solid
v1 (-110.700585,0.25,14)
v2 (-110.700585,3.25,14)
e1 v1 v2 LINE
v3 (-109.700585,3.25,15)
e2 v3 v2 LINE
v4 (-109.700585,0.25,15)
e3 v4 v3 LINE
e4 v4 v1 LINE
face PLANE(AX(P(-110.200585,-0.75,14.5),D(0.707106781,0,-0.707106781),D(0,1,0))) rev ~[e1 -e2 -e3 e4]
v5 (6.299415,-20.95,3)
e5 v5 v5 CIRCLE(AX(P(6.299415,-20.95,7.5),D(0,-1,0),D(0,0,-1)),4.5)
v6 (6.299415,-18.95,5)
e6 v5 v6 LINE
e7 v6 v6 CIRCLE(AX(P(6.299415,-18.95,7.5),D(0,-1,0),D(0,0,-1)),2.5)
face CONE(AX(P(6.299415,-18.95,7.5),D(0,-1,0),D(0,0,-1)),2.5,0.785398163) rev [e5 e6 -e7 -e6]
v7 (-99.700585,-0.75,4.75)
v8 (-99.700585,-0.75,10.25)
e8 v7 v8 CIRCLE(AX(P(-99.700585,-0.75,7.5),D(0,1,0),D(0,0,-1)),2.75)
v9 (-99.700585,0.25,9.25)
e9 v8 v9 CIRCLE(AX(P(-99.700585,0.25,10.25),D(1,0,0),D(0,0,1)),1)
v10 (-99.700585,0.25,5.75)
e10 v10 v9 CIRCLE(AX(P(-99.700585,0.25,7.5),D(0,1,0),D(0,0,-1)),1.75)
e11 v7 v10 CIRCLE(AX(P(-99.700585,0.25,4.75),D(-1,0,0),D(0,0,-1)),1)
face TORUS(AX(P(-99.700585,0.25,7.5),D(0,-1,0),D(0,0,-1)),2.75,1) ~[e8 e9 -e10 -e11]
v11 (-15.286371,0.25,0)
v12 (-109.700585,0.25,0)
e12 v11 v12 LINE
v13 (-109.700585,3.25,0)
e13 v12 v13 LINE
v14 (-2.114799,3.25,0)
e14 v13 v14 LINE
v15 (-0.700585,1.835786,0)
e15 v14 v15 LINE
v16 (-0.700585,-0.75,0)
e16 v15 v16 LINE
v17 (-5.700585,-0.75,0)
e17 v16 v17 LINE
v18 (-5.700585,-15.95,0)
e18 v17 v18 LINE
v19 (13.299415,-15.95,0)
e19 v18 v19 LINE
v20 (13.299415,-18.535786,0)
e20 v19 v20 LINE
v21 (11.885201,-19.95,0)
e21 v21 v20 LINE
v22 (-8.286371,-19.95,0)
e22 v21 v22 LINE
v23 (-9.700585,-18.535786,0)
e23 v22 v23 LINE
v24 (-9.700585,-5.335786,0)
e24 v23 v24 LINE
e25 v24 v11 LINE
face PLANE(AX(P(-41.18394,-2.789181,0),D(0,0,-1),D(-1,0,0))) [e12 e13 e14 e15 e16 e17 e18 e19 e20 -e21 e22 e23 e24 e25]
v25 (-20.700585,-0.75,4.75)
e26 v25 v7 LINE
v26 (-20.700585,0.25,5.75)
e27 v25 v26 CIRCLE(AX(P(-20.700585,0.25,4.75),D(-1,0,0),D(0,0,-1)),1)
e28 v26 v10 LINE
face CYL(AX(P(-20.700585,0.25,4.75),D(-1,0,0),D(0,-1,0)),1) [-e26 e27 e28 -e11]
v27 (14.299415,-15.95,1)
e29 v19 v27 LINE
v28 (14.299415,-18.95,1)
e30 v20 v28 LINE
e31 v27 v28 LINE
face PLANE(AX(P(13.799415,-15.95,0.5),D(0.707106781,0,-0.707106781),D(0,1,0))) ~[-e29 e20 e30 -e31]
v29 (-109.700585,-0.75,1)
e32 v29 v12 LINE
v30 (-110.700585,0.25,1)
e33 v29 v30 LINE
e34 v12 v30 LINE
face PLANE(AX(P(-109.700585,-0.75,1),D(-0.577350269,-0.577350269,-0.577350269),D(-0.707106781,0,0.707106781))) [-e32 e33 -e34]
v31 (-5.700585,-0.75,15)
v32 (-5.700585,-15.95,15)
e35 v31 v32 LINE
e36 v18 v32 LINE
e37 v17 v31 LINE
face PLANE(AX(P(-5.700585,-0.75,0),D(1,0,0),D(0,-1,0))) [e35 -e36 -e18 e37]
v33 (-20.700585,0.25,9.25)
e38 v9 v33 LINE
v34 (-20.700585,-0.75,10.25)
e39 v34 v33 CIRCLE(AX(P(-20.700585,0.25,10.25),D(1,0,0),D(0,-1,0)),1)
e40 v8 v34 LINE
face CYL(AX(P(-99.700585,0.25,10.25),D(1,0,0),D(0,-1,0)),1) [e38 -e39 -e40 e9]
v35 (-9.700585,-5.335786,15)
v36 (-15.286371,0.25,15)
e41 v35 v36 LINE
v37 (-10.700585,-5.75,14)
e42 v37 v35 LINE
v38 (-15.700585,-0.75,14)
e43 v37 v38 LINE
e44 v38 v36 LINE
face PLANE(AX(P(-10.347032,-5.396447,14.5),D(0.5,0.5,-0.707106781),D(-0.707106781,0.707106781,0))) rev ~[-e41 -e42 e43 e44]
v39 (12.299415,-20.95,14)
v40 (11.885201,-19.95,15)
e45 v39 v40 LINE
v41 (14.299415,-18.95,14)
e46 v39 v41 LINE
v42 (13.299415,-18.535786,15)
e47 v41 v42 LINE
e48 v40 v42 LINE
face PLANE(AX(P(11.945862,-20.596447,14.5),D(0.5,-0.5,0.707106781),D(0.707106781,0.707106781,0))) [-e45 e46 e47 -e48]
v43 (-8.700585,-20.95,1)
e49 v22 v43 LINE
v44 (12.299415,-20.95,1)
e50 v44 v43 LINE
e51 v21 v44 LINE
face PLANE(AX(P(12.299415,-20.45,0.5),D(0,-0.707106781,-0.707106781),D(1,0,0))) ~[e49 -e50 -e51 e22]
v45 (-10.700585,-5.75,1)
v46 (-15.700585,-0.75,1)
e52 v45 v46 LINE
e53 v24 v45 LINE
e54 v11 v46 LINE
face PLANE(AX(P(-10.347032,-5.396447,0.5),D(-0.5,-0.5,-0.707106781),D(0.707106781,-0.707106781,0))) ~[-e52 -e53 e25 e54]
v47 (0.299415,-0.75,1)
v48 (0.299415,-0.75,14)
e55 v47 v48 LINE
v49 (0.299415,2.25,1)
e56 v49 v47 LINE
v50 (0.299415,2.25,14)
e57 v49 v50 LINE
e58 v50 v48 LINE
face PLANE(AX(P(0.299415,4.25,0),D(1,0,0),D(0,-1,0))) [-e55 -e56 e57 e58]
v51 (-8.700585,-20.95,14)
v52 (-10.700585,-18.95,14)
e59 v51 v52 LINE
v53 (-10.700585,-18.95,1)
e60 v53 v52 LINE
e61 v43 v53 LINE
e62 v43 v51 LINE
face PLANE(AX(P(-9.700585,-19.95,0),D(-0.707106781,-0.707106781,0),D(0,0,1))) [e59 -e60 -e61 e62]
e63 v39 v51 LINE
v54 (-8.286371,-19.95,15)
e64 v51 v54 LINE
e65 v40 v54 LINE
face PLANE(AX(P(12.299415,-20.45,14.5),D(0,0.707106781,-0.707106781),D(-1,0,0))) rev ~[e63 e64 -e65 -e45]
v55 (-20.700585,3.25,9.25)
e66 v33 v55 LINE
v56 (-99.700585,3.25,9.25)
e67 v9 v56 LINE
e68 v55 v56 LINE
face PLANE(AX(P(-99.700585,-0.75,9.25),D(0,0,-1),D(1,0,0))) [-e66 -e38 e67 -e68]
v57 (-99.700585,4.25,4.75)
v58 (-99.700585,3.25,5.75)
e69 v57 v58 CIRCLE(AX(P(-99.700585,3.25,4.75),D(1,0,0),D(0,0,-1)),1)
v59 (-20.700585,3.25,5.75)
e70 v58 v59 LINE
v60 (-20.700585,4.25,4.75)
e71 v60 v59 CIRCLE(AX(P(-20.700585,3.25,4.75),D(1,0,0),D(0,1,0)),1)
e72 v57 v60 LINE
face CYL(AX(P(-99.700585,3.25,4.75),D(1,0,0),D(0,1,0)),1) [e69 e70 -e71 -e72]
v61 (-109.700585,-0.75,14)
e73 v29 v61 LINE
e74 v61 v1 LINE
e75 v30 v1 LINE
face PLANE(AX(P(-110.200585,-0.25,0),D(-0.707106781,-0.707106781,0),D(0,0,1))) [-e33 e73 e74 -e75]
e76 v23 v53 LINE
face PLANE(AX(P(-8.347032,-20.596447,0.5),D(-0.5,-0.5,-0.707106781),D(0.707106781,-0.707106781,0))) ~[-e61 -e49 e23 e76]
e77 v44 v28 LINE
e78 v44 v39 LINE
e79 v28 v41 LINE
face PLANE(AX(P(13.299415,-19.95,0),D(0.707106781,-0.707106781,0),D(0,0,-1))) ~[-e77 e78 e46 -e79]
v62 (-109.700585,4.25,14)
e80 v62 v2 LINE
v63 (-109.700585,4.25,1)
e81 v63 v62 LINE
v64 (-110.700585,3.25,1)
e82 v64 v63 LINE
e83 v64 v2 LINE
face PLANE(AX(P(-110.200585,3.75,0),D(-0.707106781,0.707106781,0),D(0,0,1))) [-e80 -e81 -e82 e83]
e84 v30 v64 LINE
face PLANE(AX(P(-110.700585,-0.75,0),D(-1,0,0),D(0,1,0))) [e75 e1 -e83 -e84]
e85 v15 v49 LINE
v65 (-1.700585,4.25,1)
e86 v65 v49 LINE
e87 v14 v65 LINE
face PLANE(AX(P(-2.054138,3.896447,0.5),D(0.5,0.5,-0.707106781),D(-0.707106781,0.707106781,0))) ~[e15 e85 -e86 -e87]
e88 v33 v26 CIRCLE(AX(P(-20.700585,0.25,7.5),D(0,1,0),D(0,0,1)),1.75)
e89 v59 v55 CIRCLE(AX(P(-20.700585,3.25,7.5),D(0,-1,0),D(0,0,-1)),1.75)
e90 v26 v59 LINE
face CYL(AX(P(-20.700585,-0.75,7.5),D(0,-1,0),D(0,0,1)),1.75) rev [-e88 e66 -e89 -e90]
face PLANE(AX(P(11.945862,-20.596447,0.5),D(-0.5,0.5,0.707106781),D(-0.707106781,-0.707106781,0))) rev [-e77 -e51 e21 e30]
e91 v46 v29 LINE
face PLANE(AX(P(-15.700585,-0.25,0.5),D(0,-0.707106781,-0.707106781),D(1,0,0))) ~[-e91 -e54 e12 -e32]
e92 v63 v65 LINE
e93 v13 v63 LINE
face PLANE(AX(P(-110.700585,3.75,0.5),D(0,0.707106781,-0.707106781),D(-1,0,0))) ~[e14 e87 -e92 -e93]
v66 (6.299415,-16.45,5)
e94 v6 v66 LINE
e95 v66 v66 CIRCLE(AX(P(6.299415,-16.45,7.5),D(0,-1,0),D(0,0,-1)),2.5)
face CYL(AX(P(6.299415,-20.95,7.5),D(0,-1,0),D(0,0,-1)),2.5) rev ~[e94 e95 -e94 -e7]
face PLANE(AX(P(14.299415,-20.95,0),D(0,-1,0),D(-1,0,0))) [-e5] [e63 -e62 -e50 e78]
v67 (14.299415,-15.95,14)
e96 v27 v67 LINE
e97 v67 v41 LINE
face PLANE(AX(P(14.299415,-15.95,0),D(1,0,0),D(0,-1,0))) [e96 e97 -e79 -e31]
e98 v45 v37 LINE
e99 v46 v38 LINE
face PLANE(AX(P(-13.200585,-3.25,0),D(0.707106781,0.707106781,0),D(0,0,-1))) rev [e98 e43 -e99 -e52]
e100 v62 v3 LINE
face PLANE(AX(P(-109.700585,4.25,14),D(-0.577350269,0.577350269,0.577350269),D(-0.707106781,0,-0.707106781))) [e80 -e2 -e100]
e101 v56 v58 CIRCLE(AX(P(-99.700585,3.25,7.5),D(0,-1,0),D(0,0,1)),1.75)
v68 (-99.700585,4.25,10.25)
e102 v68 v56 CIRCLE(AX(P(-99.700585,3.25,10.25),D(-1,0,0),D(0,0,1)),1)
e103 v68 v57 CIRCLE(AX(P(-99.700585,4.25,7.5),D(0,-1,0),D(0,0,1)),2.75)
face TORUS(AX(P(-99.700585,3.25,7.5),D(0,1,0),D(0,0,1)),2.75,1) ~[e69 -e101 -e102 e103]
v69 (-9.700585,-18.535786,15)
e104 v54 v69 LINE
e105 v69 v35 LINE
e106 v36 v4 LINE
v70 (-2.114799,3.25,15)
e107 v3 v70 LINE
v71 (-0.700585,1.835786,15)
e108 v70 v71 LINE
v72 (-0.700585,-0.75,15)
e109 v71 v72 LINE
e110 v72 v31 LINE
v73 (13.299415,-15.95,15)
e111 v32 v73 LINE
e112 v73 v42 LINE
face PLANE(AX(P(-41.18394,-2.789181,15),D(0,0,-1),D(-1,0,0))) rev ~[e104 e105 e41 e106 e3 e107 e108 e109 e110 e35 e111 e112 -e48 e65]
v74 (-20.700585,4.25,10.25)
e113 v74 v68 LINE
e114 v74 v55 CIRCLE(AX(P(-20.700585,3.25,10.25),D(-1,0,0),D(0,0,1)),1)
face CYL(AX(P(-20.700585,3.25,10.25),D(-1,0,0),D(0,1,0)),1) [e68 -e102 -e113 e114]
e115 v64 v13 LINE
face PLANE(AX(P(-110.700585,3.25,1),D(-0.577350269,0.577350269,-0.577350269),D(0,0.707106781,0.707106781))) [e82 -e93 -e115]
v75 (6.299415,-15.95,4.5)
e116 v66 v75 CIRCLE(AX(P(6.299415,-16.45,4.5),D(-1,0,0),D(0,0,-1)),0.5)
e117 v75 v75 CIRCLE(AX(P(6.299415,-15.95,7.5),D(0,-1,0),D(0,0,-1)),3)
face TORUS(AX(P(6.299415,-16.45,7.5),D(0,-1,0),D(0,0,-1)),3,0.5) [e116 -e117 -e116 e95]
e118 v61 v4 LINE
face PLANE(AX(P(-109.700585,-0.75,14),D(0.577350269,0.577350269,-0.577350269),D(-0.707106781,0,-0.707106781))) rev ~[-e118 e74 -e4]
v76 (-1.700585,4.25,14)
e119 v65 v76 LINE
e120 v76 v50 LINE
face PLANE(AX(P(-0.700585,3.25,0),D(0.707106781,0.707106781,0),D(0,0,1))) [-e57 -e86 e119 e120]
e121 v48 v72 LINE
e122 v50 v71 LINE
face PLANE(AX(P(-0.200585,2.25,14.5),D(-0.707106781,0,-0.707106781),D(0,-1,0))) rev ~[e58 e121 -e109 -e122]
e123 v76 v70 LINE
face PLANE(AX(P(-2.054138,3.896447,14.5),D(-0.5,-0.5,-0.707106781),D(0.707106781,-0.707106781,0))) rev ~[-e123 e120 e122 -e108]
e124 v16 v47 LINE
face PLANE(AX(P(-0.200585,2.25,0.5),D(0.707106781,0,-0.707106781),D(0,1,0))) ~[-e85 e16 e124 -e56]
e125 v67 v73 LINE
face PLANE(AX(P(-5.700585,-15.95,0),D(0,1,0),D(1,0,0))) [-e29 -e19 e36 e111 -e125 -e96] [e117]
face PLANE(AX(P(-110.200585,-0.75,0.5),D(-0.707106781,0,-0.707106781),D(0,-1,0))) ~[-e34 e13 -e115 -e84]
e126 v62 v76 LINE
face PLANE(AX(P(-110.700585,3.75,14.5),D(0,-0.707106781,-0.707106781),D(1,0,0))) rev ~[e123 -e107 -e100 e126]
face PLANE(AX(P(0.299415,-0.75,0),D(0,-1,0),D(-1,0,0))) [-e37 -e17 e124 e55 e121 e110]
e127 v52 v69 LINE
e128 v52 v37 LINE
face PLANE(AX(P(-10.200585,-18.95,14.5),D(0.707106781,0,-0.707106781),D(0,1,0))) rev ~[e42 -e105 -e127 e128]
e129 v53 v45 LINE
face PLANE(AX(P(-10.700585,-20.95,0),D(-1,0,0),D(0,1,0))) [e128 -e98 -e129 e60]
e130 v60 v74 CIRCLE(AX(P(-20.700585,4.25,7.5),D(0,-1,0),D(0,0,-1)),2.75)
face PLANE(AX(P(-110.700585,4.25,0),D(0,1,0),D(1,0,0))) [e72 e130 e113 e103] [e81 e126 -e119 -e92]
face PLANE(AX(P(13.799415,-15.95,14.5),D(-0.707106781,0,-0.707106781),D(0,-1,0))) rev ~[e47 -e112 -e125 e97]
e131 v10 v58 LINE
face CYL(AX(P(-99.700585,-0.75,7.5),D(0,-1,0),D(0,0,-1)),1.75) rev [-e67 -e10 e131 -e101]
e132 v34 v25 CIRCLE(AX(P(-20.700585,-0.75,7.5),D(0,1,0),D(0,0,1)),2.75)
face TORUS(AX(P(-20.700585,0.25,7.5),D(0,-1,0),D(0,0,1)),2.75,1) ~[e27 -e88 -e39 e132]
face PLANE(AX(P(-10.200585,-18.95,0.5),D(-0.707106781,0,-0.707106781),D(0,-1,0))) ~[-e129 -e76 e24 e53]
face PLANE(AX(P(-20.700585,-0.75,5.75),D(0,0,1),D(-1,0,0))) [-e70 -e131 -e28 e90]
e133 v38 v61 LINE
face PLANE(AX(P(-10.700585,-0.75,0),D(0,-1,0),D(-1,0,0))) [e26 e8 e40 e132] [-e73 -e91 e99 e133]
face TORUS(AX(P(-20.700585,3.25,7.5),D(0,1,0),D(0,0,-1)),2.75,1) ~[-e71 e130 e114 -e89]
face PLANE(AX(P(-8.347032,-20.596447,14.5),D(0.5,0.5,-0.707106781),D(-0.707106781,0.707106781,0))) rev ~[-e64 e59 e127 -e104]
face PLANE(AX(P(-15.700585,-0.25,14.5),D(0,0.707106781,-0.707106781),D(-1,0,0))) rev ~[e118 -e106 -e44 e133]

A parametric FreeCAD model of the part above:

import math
import FreeCAD as App
import Part
import Sketcher


def edges_at(feature, points):
    """Names of the edges that pass closest to the given points."""
    edges = feature.Shape.Edges
    near = lambda p: min(range(len(edges)), key=lambda i: edges[i].distToShape(Part.Vertex(*p))[0])
    return sorted({f"Edge{near(p) + 1}" for p in points})

doc = App.newDocument("Part")
body = doc.addObject("PartDesign::Body", "Body")

sketch1 = body.newObject("Sketcher::SketchObject", "Sketch")
sketch1.AttachmentSupport = (doc.getObject("XY_Plane"), [""])
sketch1.MapMode = "FlatFace"
sketch1.addGeometry(Part.LineSegment(App.Vector(-6, -1, 0), App.Vector(0, -1, 0)), False)
sketch1.addGeometry(Part.LineSegment(App.Vector(0, -1, 0), App.Vector(0, 4, 0)), False)
sketch1.addGeometry(Part.LineSegment(App.Vector(0, 4, 0), App.Vector(-111, 4, 0)), False)
sketch1.addGeometry(Part.LineSegment(App.Vector(-111, 4, 0), App.Vector(-111, -1, 0)), False)
sketch1.addGeometry(Part.LineSegment(App.Vector(-111, -1, 0), App.Vector(-11, -1, 0)), False)
sketch1.addGeometry(Part.LineSegment(App.Vector(-11, -1, 0), App.Vector(-11, -21, 0)), False)
sketch1.addGeometry(Part.LineSegment(App.Vector(-11, -21, 0), App.Vector(14, -21, 0)), False)
sketch1.addGeometry(Part.LineSegment(App.Vector(14, -21, 0), App.Vector(14, -16, 0)), False)
sketch1.addGeometry(Part.LineSegment(App.Vector(14, -16, 0), App.Vector(-6, -16, 0)), False)
sketch1.addGeometry(Part.LineSegment(App.Vector(-6, -16, 0), App.Vector(-6, -1, 0)), False)
sketch1.addConstraint(Sketcher.Constraint("Coincident", 0, 2, 1, 1))
sketch1.addConstraint(Sketcher.Constraint("Coincident", 1, 2, 2, 1))
sketch1.addConstraint(Sketcher.Constraint("Coincident", 2, 2, 3, 1))
sketch1.addConstraint(Sketcher.Constraint("Coincident", 3, 2, 4, 1))
sketch1.addConstraint(Sketcher.Constraint("Coincident", 4, 2, 5, 1))
sketch1.addConstraint(Sketcher.Constraint("Coincident", 5, 2, 6, 1))
sketch1.addConstraint(Sketcher.Constraint("Coincident", 6, 2, 7, 1))
sketch1.addConstraint(Sketcher.Constraint("Coincident", 7, 2, 8, 1))
sketch1.addConstraint(Sketcher.Constraint("Coincident", 8, 2, 9, 1))
sketch1.addConstraint(Sketcher.Constraint("Coincident", 9, 2, 0, 1))
sketch1.addConstraint(Sketcher.Constraint("Horizontal", 0))
sketch1.addConstraint(Sketcher.Constraint("Vertical", 1))
sketch1.addConstraint(Sketcher.Constraint("Horizontal", 2))
sketch1.addConstraint(Sketcher.Constraint("Vertical", 3))
sketch1.addConstraint(Sketcher.Constraint("Horizontal", 4))
sketch1.addConstraint(Sketcher.Constraint("Vertical", 5))
sketch1.addConstraint(Sketcher.Constraint("Horizontal", 6))
sketch1.addConstraint(Sketcher.Constraint("Vertical", 7))
sketch1.addConstraint(Sketcher.Constraint("Horizontal", 8))
sketch1.addConstraint(Sketcher.Constraint("Vertical", 9))
sketch1.addConstraint(Sketcher.Constraint("Horizontal", 0, 2, 3, 2))
sketch1.addConstraint(Sketcher.Constraint("Equal", 3, 7))
sketch1.addConstraint(Sketcher.Constraint("DistanceX", 0, 1, 0, 2, 6.0))
sketch1.addConstraint(Sketcher.Constraint("DistanceX", 2, 2, 2, 1, 111.0))
sketch1.addConstraint(Sketcher.Constraint("DistanceX", 4, 1, 4, 2, 100.0))
sketch1.addConstraint(Sketcher.Constraint("DistanceX", 6, 1, 6, 2, 25.0))
sketch1.addConstraint(Sketcher.Constraint("DistanceY", 1, 1, 1, 2, 5.0))
sketch1.addConstraint(Sketcher.Constraint("DistanceY", 5, 2, 5, 1, 20.2))
sketch1.addConstraint(Sketcher.Constraint("DistanceY", 0, 2, -1, 1, 0.75))
sketch1.addConstraint(Sketcher.Constraint("DistanceX", -1, 1, 0, 2, 0.299415))
pad1 = body.newObject("PartDesign::Pad", "Pad")
pad1.Profile = sketch1
pad1.Length = 15

sketch2 = body.newObject("Sketcher::SketchObject", "Sketch001")
sketch2.AttachmentSupport = (doc.getObject("XZ_Plane"), [""])
sketch2.MapMode = "FlatFace"
sketch2.AttachmentOffset = App.Placement(App.Vector(0, 0, 20.95), App.Rotation())
sketch2.addGeometry(Part.Circle(App.Vector(6.3, 7.5, 0), App.Vector(0, 0, 1), 2.5), False)
sketch2.addConstraint(Sketcher.Constraint("Diameter", 0, 5.0))
sketch2.addConstraint(Sketcher.Constraint("DistanceY", -1, 1, 0, 3, 7.5))
sketch2.addConstraint(Sketcher.Constraint("DistanceX", -1, 1, 0, 3, 6.299415))
pocket1 = body.newObject("PartDesign::Pocket", "Pocket")
pocket1.Profile = sketch2
pocket1.Length = 15
doc.recompute()

chamfer = body.newObject("PartDesign::Chamfer", "Chamfer")
chamfer.Base = (pocket1, edges_at(pocket1, [(6.299, -20.95, 10)]))
chamfer.Size = 2
doc.recompute()

fillet = body.newObject("PartDesign::Fillet", "Fillet")
fillet.Base = (chamfer, edges_at(chamfer, [(6.299, -15.95, 10)]))
fillet.Radius = 0.5
doc.recompute()

chamfer2 = body.newObject("PartDesign::Chamfer", "Chamfer001")
chamfer2.Base = (fillet, edges_at(fillet, [(14.299, -20.95, 7.5), (-10.701, -20.95, 7.5), (0.299, 4.25, 7.5)]))
chamfer2.Size = 2
doc.recompute()

chamfer3 = body.newObject("PartDesign::Chamfer", "Chamfer002")
chamfer3.Base = (chamfer2, edges_at(chamfer2, [(-10.701, -0.75, 7.5)]))
chamfer3.Size = 5
doc.recompute()

chamfer4 = body.newObject("PartDesign::Chamfer", "Chamfer003")
chamfer4.Base = (chamfer3, edges_at(chamfer3, [
    (13.299, -19.95, 0),
    (14.299, -17.45, 0),
    (0.299, 0.75, 0),
    (-0.701, 3.25, 0),
    (-56.201, 4.25, 0),
    (-110.701, 1.75, 0),
    (-63.201, -0.75, 0),
    (-13.201, -3.25, 0),
    (-10.701, -12.35, 0),
    (-9.701, -19.95, 0),
    (1.799, -20.95, 0),
    (-110.701, 1.75, 15),
    (-56.201, 4.25, 15),
    (-0.701, 3.25, 15),
    (0.299, 0.75, 15),
    (14.299, -17.45, 15),
    (13.299, -19.95, 15),
    (1.799, -20.95, 15),
    (-9.701, -19.95, 15),
    (-10.701, -12.35, 15),
    (-13.201, -3.25, 15),
    (-63.201, -0.75, 15),
    (-110.701, 4.25, 7.5),
    (-110.701, -0.75, 7.5),
]))
chamfer4.Size = 1

sketch3 = body.newObject("Sketcher::SketchObject", "Sketch002")
sketch3.AttachmentSupport = (doc.getObject("XZ_Plane"), [""])
sketch3.MapMode = "FlatFace"
sketch3.AttachmentOffset = App.Placement(App.Vector(0, 0, 0.75), App.Rotation())
sketch3.addGeometry(Part.LineSegment(App.Vector(-20.7, 9.2, 0), App.Vector(-99.7, 9.2, 0)), False)
sketch3.addGeometry(Part.ArcOfCircle(Part.Circle(App.Vector(-99.7, 7.5, 0), App.Vector(0, 0, 1), 1.8), math.radians(90), math.radians(270)), False)
sketch3.addGeometry(Part.LineSegment(App.Vector(-99.7, 5.8, 0), App.Vector(-20.7, 5.8, 0)), False)
sketch3.addGeometry(Part.ArcOfCircle(Part.Circle(App.Vector(-20.7, 7.5, 0), App.Vector(0, 0, 1), 1.8), math.radians(-90), math.radians(90)), False)
sketch3.addConstraint(Sketcher.Constraint("Tangent", 0, 2, 1, 1))
sketch3.addConstraint(Sketcher.Constraint("Tangent", 1, 2, 2, 1))
sketch3.addConstraint(Sketcher.Constraint("Tangent", 2, 2, 3, 1))
sketch3.addConstraint(Sketcher.Constraint("Tangent", 3, 2, 0, 1))
sketch3.addConstraint(Sketcher.Constraint("Horizontal", 0))
sketch3.addConstraint(Sketcher.Constraint("Horizontal", 2))
sketch3.addConstraint(Sketcher.Constraint("DistanceX", 0, 2, 0, 1, 79.0))
sketch3.addConstraint(Sketcher.Constraint("Radius", 1, 1.75))
sketch3.addConstraint(Sketcher.Constraint("DistanceY", -1, 1, 1, 3, 7.5))
sketch3.addConstraint(Sketcher.Constraint("DistanceX", 1, 3, -1, 1, 99.700585))
pocket2 = body.newObject("PartDesign::Pocket", "Pocket001")
pocket2.Profile = sketch3
pocket2.Length = 10
doc.recompute()

fillet2 = body.newObject("PartDesign::Fillet", "Fillet001")
fillet2.Base = (pocket2, edges_at(pocket2, [
    (-101.451, 4.25, 7.5),
    (-60.201, 4.25, 9.25),
    (-18.951, 4.25, 7.5),
    (-60.201, 4.25, 5.75),
    (-101.451, -0.75, 7.5),
    (-60.201, -0.75, 5.75),
    (-18.951, -0.75, 7.5),
    (-60.201, -0.75, 9.25),
]))
fillet2.Radius = 1

doc.recompute()
